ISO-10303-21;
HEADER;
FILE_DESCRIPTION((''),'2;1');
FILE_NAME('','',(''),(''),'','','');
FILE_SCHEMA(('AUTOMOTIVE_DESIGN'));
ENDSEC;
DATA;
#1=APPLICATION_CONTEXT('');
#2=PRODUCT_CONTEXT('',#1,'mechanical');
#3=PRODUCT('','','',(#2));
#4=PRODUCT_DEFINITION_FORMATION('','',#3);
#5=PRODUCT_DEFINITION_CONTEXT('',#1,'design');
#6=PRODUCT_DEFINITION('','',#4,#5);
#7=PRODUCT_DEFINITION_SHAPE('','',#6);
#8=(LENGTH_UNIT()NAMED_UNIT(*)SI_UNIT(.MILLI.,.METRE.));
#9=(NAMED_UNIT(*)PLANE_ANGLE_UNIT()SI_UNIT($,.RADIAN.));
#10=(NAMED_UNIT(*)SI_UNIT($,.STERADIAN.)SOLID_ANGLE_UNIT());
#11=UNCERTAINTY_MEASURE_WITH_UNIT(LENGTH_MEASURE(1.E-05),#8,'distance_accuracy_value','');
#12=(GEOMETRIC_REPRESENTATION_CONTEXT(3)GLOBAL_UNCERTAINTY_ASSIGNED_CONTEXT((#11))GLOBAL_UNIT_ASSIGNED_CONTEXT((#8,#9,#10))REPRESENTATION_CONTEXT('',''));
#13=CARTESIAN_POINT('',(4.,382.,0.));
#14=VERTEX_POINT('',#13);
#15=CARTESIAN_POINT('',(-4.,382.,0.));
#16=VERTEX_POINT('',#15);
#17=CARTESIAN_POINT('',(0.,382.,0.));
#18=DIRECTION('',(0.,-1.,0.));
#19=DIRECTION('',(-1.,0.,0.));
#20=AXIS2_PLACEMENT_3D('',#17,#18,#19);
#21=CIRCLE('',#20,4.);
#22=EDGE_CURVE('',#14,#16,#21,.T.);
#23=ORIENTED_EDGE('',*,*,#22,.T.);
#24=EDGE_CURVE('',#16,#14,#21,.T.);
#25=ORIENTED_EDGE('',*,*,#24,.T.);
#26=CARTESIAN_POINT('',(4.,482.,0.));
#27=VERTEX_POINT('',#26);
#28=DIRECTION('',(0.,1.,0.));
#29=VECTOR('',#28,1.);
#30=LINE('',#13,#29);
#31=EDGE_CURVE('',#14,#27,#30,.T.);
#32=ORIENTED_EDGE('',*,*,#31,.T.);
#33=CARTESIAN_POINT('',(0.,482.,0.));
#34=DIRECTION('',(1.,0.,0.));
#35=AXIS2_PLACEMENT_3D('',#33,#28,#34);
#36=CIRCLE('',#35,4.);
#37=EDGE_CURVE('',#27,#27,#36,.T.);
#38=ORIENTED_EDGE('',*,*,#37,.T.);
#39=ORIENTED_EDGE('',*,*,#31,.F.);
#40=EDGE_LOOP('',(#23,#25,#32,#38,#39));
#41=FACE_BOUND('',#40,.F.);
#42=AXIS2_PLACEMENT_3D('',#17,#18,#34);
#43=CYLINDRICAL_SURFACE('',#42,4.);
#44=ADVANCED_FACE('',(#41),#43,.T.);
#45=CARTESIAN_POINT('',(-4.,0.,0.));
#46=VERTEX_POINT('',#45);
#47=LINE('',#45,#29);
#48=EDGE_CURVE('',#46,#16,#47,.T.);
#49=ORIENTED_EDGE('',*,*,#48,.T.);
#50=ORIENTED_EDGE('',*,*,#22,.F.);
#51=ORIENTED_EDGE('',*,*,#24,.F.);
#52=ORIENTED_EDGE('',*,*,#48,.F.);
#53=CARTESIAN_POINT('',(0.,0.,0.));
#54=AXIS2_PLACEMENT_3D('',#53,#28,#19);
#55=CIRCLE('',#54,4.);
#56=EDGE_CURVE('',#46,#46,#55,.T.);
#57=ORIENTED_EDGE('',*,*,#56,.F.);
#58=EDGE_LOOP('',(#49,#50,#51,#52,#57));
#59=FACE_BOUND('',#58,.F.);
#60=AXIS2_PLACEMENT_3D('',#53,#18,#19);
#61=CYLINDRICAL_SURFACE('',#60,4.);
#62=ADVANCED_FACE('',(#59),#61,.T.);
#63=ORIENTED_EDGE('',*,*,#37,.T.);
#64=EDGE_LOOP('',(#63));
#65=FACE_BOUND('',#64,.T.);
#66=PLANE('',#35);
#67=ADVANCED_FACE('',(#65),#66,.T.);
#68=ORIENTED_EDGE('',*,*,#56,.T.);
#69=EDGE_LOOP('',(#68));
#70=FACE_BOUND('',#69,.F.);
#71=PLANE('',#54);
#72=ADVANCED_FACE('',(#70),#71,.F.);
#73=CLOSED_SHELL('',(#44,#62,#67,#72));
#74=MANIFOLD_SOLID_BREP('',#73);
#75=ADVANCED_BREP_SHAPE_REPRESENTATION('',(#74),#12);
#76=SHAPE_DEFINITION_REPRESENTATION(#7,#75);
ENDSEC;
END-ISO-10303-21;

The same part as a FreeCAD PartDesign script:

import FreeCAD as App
import Part
import Sketcher
Q = App.Units.Quantity

doc = App.newDocument("Part")
body = doc.addObject("PartDesign::Body", "Body")

# Sketch on XZ plane
sketch1 = doc.addObject("Sketcher::SketchObject", "Sketch")
body.addObject(sketch1)
sketch1.AttachmentSupport = (doc.XZ_Plane, [""])
sketch1.MapMode = "FlatFace"
sketch1.addGeometry(Part.Circle(App.Vector(0, 0, 0), App.Vector(0, 0, 1), 4), False)
sketch1.addConstraint([
    Sketcher.Constraint("Coincident", 0, 3, -1, 1),
    Sketcher.Constraint("Diameter", 0, Q("8 mm")),
])
pad1 = doc.addObject("PartDesign::Pad", "Pad")
body.addObject(pad1)
pad1.Profile = sketch1
pad1.Length = 400
pad1.Reversed = True

# Sketch on XZ plane
sketch2 = doc.addObject("Sketcher::SketchObject", "Sketch001")
body.addObject(sketch2)
sketch2.AttachmentSupport = (doc.XZ_Plane, [""])
sketch2.MapMode = "FlatFace"
sketch2.AttachmentOffset = App.Placement(App.Vector(0, 0, -400), App.Rotation())
sketch2.addGeometry(Part.Circle(App.Vector(0, 0, 0), App.Vector(0, 0, 1), 4), False)
sketch2.addConstraint([
    Sketcher.Constraint("Coincident", 0, 3, -1, 1),
    Sketcher.Constraint("Diameter", 0, Q("8 mm")),
])
pocket1 = doc.addObject("PartDesign::Pocket", "Pocket")
body.addObject(pocket1)
pocket1.Profile = sketch2
pocket1.Length = 18
pocket1.Reversed = True

# Sketch on XZ plane
sketch3 = doc.addObject("Sketcher::SketchObject", "Sketch002")
body.addObject(sketch3)
sketch3.AttachmentSupport = (doc.XZ_Plane, [""])
sketch3.MapMode = "FlatFace"
sketch3.AttachmentOffset = App.Placement(App.Vector(0, 0, -382), App.Rotation())
sketch3.addGeometry(Part.Circle(App.Vector(0, 0, 0), App.Vector(0, 0, 1), 4), False)
sketch3.addConstraint([
    Sketcher.Constraint("Coincident", 0, 3, -1, 1),
    Sketcher.Constraint("Diameter", 0, Q("8 mm")),
])
pad2 = doc.addObject("PartDesign::Pad", "Pad001")
body.addObject(pad2)
pad2.Profile = sketch3
pad2.Length = 100
pad2.Reversed = True

doc.recompute()
